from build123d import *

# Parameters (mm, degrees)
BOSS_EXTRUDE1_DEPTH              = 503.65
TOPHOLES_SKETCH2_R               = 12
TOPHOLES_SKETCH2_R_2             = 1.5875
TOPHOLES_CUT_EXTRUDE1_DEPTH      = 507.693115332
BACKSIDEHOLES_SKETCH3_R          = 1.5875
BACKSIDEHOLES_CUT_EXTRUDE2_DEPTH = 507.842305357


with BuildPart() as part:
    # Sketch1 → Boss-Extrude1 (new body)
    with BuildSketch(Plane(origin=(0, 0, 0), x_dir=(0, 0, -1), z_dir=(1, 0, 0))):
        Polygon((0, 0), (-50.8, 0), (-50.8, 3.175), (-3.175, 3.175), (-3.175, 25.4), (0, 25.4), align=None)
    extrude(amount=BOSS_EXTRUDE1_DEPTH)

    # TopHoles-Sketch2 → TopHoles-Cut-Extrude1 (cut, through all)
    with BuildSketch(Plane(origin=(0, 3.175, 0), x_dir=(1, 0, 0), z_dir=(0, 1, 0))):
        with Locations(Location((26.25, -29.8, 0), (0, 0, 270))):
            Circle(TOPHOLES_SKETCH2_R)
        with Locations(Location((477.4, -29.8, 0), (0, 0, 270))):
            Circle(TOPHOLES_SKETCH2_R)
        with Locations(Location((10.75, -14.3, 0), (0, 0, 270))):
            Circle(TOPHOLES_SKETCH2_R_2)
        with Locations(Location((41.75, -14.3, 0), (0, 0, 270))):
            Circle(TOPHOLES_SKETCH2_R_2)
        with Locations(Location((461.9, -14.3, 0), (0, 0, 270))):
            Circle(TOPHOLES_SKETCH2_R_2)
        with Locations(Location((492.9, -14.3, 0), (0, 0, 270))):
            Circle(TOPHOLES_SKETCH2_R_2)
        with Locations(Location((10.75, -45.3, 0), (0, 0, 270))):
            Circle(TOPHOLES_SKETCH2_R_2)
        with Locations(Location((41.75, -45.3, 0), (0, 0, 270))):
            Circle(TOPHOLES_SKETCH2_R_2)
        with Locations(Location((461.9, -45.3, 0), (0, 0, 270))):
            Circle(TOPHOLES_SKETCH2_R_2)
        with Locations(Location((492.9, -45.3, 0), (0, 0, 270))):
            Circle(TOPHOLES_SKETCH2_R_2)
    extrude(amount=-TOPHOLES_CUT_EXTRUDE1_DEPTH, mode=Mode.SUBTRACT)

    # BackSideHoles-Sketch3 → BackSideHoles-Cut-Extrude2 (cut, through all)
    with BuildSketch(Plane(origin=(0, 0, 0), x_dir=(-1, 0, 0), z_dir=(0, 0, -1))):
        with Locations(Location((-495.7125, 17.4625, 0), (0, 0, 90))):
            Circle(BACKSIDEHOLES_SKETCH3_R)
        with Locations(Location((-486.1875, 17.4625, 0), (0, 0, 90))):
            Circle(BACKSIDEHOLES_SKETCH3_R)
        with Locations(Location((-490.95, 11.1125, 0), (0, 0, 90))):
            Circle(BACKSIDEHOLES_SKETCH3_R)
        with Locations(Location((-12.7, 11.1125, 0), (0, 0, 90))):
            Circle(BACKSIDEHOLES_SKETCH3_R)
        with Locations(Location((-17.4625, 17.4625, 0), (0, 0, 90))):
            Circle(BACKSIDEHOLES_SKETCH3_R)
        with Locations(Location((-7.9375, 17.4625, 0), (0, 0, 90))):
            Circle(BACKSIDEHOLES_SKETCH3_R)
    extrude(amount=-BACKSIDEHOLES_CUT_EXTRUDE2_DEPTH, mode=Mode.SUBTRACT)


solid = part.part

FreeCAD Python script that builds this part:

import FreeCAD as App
import Part
import Sketcher
Q = App.Units.Quantity


def add_polygon(sketch, points):
    """Adds a closed chain of lines whose ends are joined by coincident constraints."""
    first, n = sketch.GeometryCount, len(points)
    for a, b in zip(points, points[1:] + points[:1]):
        sketch.addGeometry(Part.LineSegment(App.Vector(*a, 0), App.Vector(*b, 0)), False)
    for i in range(n):
        sketch.addConstraint(Sketcher.Constraint("Coincident", first + i, 2, first + (i + 1) % n, 1))

doc = App.newDocument("Part")
params = doc.addObject("Spreadsheet::Sheet", "Params")
for row, (alias, value) in enumerate([
    ("sketch1_width", "1 in"),
    ("sketch1_height", "2 in"),
    ("sketch1_width2", "0.875 in"),
    ("pad1_length", "503.65 mm"),
    ("sketch2_diameter", "0.125 in"),
    ("sketch3_diameter", "0.125 in"),
], start=1):
    params.set(f"A{row}", alias)
    params.set(f"B{row}", "=" + value)
    params.setAlias(f"B{row}", alias)

body = doc.addObject("PartDesign::Body", "Body")

sketch1 = body.newObject("Sketcher::SketchObject", "Sketch")
sketch1.AttachmentSupport = (doc.getObject("YZ_Plane"), [""])
sketch1.MapMode = "FlatFace"
add_polygon(sketch1, [(0, 50.8), (0, 0), (25.4, 0), (25.4, 3.2), (3.2, 3.2), (3.2, 50.8)])
sketch1.addConstraint(Sketcher.Constraint("Vertical", 0))
sketch1.addConstraint(Sketcher.Constraint("Horizontal", 1))
sketch1.addConstraint(Sketcher.Constraint("Vertical", 2))
sketch1.addConstraint(Sketcher.Constraint("Horizontal", 3))
sketch1.addConstraint(Sketcher.Constraint("Vertical", 4))
sketch1.addConstraint(Sketcher.Constraint("Horizontal", 5))
sketch1.addConstraint(Sketcher.Constraint("Coincident", 0, 2, -1, 1))
sketch1.addConstraint(Sketcher.Constraint("Equal", 5, 2))
sketch1.addConstraint(Sketcher.Constraint("DistanceX", 1, 1, 1, 2, Q("1 in")))
sketch1.addConstraint(Sketcher.Constraint("DistanceY", 0, 2, 0, 1, Q("2 in")))
sketch1.addConstraint(Sketcher.Constraint("DistanceX", 3, 2, 3, 1, Q("0.875 in")))
sketch1.setExpression("Constraints[14]", "Params.sketch1_width")
sketch1.setExpression("Constraints[15]", "Params.sketch1_height")
sketch1.setExpression("Constraints[16]", "Params.sketch1_width2")
pad1 = body.newObject("PartDesign::Pad", "Pad")
pad1.Profile = sketch1
pad1.setExpression("Length", "Params.pad1_length")

sketch2 = body.newObject("Sketcher::SketchObject", "Sketch001")
sketch2.AttachmentSupport = (doc.getObject("XZ_Plane"), [""])
sketch2.MapMode = "FlatFace"
sketch2.AttachmentOffset = App.Placement(App.Vector(0, 0, -0.125 * 25.4), App.Rotation())
sketch2.addGeometry(Part.Circle(App.Vector(26.2, 29.8, 0), App.Vector(0, 0, 1), 12), False)
sketch2.addGeometry(Part.Circle(App.Vector(477.4, 29.8, 0), App.Vector(0, 0, 1), 12), False)
sketch2.addGeometry(Part.Circle(App.Vector(10.8, 14.3, 0), App.Vector(0, 0, 1), 1.6), False)
sketch2.addGeometry(Part.Circle(App.Vector(41.8, 14.3, 0), App.Vector(0, 0, 1), 1.6), False)
sketch2.addGeometry(Part.Circle(App.Vector(461.9, 14.3, 0), App.Vector(0, 0, 1), 1.6), False)
sketch2.addGeometry(Part.Circle(App.Vector(492.9, 14.3, 0), App.Vector(0, 0, 1), 1.6), False)
sketch2.addGeometry(Part.Circle(App.Vector(10.8, 45.3, 0), App.Vector(0, 0, 1), 1.6), False)
sketch2.addGeometry(Part.Circle(App.Vector(41.8, 45.3, 0), App.Vector(0, 0, 1), 1.6), False)
sketch2.addGeometry(Part.Circle(App.Vector(461.9, 45.3, 0), App.Vector(0, 0, 1), 1.6), False)
sketch2.addGeometry(Part.Circle(App.Vector(492.9, 45.3, 0), App.Vector(0, 0, 1), 1.6), False)
sketch2.addConstraint(Sketcher.Constraint("Equal", 0, 1))
sketch2.addConstraint(Sketcher.Constraint("Equal", 2, 3))
sketch2.addConstraint(Sketcher.Constraint("Equal", 3, 4))
sketch2.addConstraint(Sketcher.Constraint("Equal", 4, 5))
sketch2.addConstraint(Sketcher.Constraint("Equal", 5, 6))
sketch2.addConstraint(Sketcher.Constraint("Equal", 6, 7))
sketch2.addConstraint(Sketcher.Constraint("Equal", 7, 8))
sketch2.addConstraint(Sketcher.Constraint("Equal", 8, 9))
sketch2.addConstraint(Sketcher.Constraint("Horizontal", 0, 3, 1, 3))
sketch2.addConstraint(Sketcher.Constraint("Horizontal", 2, 3, 3, 3))
sketch2.addConstraint(Sketcher.Constraint("Horizontal", 3, 3, 4, 3))
sketch2.addConstraint(Sketcher.Constraint("Horizontal", 4, 3, 5, 3))
sketch2.addConstraint(Sketcher.Constraint("Horizontal", 6, 3, 7, 3))
sketch2.addConstraint(Sketcher.Constraint("Horizontal", 7, 3, 8, 3))
sketch2.addConstraint(Sketcher.Constraint("Horizontal", 8, 3, 9, 3))
sketch2.addConstraint(Sketcher.Constraint("Vertical", 2, 3, 6, 3))
sketch2.addConstraint(Sketcher.Constraint("Vertical", 3, 3, 7, 3))
sketch2.addConstraint(Sketcher.Constraint("Vertical", 4, 3, 8, 3))
sketch2.addConstraint(Sketcher.Constraint("Vertical", 5, 3, 9, 3))
sketch2.addConstraint(Sketcher.Constraint("Diameter", 2, Q("0.125 in")))
sketch2.addConstraint(Sketcher.Constraint("Diameter", 0, Q("24 mm")))
sketch2.addConstraint(Sketcher.Constraint("DistanceX", -1, 1, 0, 3, Q("26.25 mm")))
sketch2.addConstraint(Sketcher.Constraint("DistanceY", -1, 1, 0, 3, Q("29.8 mm")))
sketch2.addConstraint(Sketcher.Constraint("DistanceX", -1, 1, 1, 3, Q("477.4 mm")))
sketch2.addConstraint(Sketcher.Constraint("DistanceX", -1, 1, 2, 3, Q("10.75 mm")))
sketch2.addConstraint(Sketcher.Constraint("DistanceY", -1, 1, 2, 3, Q("14.3 mm")))
sketch2.addConstraint(Sketcher.Constraint("DistanceX", -1, 1, 3, 3, Q("41.75 mm")))
sketch2.addConstraint(Sketcher.Constraint("DistanceX", -1, 1, 4, 3, Q("461.9 mm")))
sketch2.addConstraint(Sketcher.Constraint("DistanceX", -1, 1, 5, 3, Q("492.9 mm")))
sketch2.addConstraint(Sketcher.Constraint("DistanceY", -1, 1, 6, 3, Q("45.3 mm")))
sketch2.setExpression("Constraints[19]", "Params.sketch2_diameter")
pocket1 = body.newObject("PartDesign::Pocket", "Pocket")
pocket1.Profile = sketch2
pocket1.Type = "ThroughAll"
pocket1.Reversed = True

sketch3 = body.newObject("Sketcher::SketchObject", "Sketch002")
sketch3.AttachmentSupport = (doc.getObject("XY_Plane"), [""])
sketch3.MapMode = "FlatFace"
sketch3.addGeometry(Part.Circle(App.Vector(495.7, 17.5, 0), App.Vector(0, 0, 1), 1.6), False)
sketch3.addGeometry(Part.Circle(App.Vector(486.2, 17.5, 0), App.Vector(0, 0, 1), 1.6), False)
sketch3.addGeometry(Part.Circle(App.Vector(490.9, 11.1, 0), App.Vector(0, 0, 1), 1.6), False)
sketch3.addGeometry(Part.Circle(App.Vector(12.7, 11.1, 0), App.Vector(0, 0, 1), 1.6), False)
sketch3.addGeometry(Part.Circle(App.Vector(17.5, 17.5, 0), App.Vector(0, 0, 1), 1.6), False)
sketch3.addGeometry(Part.Circle(App.Vector(7.9, 17.5, 0), App.Vector(0, 0, 1), 1.6), False)
sketch3.addConstraint(Sketcher.Constraint("Equal", 0, 1))
sketch3.addConstraint(Sketcher.Constraint("Equal", 1, 2))
sketch3.addConstraint(Sketcher.Constraint("Equal", 2, 3))
sketch3.addConstraint(Sketcher.Constraint("Equal", 3, 4))
sketch3.addConstraint(Sketcher.Constraint("Equal", 4, 5))
sketch3.addConstraint(Sketcher.Constraint("Horizontal", 0, 3, 1, 3))
sketch3.addConstraint(Sketcher.Constraint("Horizontal", 2, 3, 3, 3))
sketch3.addConstraint(Sketcher.Constraint("Horizontal", 1, 3, 4, 3))
sketch3.addConstraint(Sketcher.Constraint("Horizontal", 4, 3, 5, 3))
sketch3.addConstraint(Sketcher.Constraint("Diameter", 0, Q("0.125 in")))
sketch3.addConstraint(Sketcher.Constraint("DistanceX", -1, 1, 3, 3, Q("0.5 in")))
sketch3.addConstraint(Sketcher.Constraint("DistanceY", 2, 3, 0, 3, Q("0.25 in")))
sketch3.addConstraint(Sketcher.Constraint("DistanceY", -1, 1, 0, 3, Q("0.6875 in")))
sketch3.addConstraint(Sketcher.Constraint("DistanceX", -1, 1, 4, 3, Q("0.6875 in")))
sketch3.addConstraint(Sketcher.Constraint("DistanceX", -1, 1, 5, 3, Q("0.3125 in")))
sketch3.addConstraint(Sketcher.Constraint("DistanceX", 1, 3, 0, 3, Q("0.375 in")))
sketch3.addConstraint(Sketcher.Constraint("DistanceX", 2, 3, 0, 3, Q("0.1875 in")))
sketch3.addConstraint(Sketcher.Constraint("DistanceX", -1, 1, 0, 3, Q("495.7125 mm")))
sketch3.setExpression("Constraints[9]", "Params.sketch3_diameter")
pocket2 = body.newObject("PartDesign::Pocket", "Pocket001")
pocket2.Profile = sketch3
pocket2.Type = "ThroughAll"
pocket2.Reversed = True

doc.recompute()
